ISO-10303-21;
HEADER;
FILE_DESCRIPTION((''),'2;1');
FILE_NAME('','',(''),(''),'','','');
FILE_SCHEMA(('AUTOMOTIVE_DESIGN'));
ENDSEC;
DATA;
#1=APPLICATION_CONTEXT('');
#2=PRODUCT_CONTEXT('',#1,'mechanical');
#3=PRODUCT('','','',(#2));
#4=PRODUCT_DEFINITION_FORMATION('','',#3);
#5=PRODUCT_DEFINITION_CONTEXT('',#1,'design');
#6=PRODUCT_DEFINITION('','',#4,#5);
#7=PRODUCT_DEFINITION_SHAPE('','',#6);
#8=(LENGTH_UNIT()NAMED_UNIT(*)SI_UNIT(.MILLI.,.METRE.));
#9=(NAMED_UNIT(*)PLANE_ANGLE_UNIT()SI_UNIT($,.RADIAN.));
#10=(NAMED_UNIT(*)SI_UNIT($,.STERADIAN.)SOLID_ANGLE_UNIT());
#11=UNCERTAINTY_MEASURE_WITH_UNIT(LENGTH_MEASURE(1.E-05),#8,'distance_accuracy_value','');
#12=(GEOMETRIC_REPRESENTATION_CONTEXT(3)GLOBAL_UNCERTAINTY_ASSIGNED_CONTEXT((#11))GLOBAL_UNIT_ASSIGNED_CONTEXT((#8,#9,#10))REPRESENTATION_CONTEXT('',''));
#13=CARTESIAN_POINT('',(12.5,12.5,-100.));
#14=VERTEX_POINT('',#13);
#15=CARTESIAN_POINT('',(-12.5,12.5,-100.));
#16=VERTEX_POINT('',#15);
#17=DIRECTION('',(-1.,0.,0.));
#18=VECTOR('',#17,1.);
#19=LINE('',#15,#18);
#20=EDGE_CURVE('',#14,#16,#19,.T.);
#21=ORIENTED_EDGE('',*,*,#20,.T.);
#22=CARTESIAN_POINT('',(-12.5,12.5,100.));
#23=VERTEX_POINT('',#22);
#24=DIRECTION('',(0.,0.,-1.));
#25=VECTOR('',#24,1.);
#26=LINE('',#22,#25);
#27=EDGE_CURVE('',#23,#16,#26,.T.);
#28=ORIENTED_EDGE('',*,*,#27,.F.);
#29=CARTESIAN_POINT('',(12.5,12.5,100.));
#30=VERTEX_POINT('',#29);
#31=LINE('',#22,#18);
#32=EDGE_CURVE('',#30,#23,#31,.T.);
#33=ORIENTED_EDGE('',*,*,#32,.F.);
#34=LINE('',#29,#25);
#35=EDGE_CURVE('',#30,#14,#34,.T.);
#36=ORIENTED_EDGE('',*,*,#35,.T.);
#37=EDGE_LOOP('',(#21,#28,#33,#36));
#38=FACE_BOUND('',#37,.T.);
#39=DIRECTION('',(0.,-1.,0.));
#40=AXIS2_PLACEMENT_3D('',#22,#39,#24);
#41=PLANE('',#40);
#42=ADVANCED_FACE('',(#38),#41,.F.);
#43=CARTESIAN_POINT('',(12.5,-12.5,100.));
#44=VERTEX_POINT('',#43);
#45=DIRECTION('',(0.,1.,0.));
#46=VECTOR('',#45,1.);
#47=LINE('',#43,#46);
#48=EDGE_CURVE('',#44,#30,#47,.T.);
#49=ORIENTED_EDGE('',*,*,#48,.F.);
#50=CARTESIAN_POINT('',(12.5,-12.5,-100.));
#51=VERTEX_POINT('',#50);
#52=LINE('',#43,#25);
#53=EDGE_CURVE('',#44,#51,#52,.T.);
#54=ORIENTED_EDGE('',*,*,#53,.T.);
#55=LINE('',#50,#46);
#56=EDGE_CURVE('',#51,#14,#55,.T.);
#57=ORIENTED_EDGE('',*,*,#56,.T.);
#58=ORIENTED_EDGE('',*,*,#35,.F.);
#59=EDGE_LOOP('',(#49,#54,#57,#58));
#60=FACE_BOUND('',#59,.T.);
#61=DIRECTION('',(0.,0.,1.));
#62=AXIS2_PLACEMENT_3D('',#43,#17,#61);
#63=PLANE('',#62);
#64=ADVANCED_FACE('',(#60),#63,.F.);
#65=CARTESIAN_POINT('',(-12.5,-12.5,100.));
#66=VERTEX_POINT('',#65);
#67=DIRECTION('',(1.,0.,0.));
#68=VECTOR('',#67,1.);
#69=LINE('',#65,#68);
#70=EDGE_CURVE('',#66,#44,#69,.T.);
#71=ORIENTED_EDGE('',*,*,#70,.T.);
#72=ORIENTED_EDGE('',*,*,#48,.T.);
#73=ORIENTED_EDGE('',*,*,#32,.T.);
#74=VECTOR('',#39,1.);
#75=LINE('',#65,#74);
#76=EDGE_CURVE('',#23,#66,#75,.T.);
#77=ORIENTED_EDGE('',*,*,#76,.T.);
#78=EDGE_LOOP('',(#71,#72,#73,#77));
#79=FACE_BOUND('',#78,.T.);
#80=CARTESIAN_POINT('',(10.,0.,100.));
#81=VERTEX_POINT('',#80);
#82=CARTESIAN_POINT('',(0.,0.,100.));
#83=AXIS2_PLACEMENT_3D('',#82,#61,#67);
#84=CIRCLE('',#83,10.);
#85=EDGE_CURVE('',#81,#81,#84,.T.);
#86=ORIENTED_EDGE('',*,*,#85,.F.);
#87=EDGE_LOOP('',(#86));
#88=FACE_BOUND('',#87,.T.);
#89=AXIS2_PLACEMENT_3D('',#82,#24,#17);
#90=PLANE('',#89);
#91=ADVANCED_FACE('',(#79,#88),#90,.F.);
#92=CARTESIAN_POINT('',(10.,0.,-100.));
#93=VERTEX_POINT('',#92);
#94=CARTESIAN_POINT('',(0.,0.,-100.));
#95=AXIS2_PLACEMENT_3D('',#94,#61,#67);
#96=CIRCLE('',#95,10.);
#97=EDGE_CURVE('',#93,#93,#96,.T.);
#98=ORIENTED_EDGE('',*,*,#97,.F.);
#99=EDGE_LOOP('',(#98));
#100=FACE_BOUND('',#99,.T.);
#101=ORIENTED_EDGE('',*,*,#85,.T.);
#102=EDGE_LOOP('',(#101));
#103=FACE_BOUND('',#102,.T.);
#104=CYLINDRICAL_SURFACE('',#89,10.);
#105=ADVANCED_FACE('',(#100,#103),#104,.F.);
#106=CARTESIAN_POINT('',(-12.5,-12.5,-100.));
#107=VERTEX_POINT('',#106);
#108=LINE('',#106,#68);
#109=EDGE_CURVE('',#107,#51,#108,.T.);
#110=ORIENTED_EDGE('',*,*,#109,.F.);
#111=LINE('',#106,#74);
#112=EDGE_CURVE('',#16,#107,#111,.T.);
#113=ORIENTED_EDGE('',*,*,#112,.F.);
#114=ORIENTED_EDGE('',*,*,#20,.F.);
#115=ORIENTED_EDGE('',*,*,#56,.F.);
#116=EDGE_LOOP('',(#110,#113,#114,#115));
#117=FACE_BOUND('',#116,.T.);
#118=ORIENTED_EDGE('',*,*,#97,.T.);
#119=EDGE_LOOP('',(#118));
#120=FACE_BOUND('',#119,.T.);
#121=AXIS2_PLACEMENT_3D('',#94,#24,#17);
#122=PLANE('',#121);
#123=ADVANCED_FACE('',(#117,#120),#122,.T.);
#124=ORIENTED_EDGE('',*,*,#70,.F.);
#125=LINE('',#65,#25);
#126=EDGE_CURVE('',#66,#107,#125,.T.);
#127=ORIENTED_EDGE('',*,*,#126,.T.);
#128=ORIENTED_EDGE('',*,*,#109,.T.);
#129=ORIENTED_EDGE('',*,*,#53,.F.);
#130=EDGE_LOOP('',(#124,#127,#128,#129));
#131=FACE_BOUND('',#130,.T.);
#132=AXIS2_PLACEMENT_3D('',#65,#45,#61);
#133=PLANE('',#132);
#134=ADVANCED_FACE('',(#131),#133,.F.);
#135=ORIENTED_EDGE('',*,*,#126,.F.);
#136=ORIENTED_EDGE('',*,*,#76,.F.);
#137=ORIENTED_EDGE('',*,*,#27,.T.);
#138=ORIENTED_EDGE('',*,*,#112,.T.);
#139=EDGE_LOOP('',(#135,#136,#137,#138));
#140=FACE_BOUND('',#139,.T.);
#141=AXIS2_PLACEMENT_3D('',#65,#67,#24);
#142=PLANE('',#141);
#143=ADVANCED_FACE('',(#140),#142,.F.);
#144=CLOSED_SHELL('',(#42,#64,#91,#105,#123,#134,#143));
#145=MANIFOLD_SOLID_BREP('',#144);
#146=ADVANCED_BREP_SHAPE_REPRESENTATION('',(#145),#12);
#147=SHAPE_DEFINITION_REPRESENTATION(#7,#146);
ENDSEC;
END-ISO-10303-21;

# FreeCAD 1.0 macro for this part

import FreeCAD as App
import Part
import Sketcher
from FreeCAD import Vector


def add_polygon(sketch, points):
    """Adds a closed chain of lines whose ends are joined by coincident constraints."""
    first, n = sketch.GeometryCount, len(points)
    for a, b in zip(points, points[1:] + points[:1]):
        sketch.addGeometry(Part.LineSegment(App.Vector(*a, 0), App.Vector(*b, 0)), False)
    for i in range(n):
        sketch.addConstraint(Sketcher.Constraint("Coincident", first + i, 2, first + (i + 1) % n, 1))

doc = App.newDocument("Part")
body = doc.addObject("PartDesign::Body", "Body")

sketch1 = body.newObject("Sketcher::SketchObject", "Sketch")
sketch1.AttachmentSupport = (doc.getObject("XY_Plane"), [""])
sketch1.MapMode = "FlatFace"
add_polygon(sketch1, [(-12.5, 12.5), (-12.5, -12.5), (12.5, -12.5), (12.5, 12.5)])
sketch1.addGeometry(Part.Circle(Vector(0, 0, 0), Vector(0, 0, 1), 10), False)
sketch1.addConstraint(Sketcher.Constraint("Vertical", 0))
sketch1.addConstraint(Sketcher.Constraint("Horizontal", 1))
sketch1.addConstraint(Sketcher.Constraint("Vertical", 2))
sketch1.addConstraint(Sketcher.Constraint("Horizontal", 3))
sketch1.addConstraint(Sketcher.Constraint("Coincident", 4, 3, -1, 1))
sketch1.addConstraint(Sketcher.Constraint("Symmetric", 0, 2, 2, 2, -1, 1))
sketch1.addConstraint(Sketcher.Constraint("Equal", 3, 0))
sketch1.addConstraint(Sketcher.Constraint("Diameter", 4, 20.0))
sketch1.addConstraint(Sketcher.Constraint("DistanceX", 1, 1, 1, 2, 25.0))
pad1 = body.newObject("PartDesign::Pad", "Pad")
pad1.Profile = sketch1
pad1.Length = 200
pad1.Midplane = True

doc.recompute()
